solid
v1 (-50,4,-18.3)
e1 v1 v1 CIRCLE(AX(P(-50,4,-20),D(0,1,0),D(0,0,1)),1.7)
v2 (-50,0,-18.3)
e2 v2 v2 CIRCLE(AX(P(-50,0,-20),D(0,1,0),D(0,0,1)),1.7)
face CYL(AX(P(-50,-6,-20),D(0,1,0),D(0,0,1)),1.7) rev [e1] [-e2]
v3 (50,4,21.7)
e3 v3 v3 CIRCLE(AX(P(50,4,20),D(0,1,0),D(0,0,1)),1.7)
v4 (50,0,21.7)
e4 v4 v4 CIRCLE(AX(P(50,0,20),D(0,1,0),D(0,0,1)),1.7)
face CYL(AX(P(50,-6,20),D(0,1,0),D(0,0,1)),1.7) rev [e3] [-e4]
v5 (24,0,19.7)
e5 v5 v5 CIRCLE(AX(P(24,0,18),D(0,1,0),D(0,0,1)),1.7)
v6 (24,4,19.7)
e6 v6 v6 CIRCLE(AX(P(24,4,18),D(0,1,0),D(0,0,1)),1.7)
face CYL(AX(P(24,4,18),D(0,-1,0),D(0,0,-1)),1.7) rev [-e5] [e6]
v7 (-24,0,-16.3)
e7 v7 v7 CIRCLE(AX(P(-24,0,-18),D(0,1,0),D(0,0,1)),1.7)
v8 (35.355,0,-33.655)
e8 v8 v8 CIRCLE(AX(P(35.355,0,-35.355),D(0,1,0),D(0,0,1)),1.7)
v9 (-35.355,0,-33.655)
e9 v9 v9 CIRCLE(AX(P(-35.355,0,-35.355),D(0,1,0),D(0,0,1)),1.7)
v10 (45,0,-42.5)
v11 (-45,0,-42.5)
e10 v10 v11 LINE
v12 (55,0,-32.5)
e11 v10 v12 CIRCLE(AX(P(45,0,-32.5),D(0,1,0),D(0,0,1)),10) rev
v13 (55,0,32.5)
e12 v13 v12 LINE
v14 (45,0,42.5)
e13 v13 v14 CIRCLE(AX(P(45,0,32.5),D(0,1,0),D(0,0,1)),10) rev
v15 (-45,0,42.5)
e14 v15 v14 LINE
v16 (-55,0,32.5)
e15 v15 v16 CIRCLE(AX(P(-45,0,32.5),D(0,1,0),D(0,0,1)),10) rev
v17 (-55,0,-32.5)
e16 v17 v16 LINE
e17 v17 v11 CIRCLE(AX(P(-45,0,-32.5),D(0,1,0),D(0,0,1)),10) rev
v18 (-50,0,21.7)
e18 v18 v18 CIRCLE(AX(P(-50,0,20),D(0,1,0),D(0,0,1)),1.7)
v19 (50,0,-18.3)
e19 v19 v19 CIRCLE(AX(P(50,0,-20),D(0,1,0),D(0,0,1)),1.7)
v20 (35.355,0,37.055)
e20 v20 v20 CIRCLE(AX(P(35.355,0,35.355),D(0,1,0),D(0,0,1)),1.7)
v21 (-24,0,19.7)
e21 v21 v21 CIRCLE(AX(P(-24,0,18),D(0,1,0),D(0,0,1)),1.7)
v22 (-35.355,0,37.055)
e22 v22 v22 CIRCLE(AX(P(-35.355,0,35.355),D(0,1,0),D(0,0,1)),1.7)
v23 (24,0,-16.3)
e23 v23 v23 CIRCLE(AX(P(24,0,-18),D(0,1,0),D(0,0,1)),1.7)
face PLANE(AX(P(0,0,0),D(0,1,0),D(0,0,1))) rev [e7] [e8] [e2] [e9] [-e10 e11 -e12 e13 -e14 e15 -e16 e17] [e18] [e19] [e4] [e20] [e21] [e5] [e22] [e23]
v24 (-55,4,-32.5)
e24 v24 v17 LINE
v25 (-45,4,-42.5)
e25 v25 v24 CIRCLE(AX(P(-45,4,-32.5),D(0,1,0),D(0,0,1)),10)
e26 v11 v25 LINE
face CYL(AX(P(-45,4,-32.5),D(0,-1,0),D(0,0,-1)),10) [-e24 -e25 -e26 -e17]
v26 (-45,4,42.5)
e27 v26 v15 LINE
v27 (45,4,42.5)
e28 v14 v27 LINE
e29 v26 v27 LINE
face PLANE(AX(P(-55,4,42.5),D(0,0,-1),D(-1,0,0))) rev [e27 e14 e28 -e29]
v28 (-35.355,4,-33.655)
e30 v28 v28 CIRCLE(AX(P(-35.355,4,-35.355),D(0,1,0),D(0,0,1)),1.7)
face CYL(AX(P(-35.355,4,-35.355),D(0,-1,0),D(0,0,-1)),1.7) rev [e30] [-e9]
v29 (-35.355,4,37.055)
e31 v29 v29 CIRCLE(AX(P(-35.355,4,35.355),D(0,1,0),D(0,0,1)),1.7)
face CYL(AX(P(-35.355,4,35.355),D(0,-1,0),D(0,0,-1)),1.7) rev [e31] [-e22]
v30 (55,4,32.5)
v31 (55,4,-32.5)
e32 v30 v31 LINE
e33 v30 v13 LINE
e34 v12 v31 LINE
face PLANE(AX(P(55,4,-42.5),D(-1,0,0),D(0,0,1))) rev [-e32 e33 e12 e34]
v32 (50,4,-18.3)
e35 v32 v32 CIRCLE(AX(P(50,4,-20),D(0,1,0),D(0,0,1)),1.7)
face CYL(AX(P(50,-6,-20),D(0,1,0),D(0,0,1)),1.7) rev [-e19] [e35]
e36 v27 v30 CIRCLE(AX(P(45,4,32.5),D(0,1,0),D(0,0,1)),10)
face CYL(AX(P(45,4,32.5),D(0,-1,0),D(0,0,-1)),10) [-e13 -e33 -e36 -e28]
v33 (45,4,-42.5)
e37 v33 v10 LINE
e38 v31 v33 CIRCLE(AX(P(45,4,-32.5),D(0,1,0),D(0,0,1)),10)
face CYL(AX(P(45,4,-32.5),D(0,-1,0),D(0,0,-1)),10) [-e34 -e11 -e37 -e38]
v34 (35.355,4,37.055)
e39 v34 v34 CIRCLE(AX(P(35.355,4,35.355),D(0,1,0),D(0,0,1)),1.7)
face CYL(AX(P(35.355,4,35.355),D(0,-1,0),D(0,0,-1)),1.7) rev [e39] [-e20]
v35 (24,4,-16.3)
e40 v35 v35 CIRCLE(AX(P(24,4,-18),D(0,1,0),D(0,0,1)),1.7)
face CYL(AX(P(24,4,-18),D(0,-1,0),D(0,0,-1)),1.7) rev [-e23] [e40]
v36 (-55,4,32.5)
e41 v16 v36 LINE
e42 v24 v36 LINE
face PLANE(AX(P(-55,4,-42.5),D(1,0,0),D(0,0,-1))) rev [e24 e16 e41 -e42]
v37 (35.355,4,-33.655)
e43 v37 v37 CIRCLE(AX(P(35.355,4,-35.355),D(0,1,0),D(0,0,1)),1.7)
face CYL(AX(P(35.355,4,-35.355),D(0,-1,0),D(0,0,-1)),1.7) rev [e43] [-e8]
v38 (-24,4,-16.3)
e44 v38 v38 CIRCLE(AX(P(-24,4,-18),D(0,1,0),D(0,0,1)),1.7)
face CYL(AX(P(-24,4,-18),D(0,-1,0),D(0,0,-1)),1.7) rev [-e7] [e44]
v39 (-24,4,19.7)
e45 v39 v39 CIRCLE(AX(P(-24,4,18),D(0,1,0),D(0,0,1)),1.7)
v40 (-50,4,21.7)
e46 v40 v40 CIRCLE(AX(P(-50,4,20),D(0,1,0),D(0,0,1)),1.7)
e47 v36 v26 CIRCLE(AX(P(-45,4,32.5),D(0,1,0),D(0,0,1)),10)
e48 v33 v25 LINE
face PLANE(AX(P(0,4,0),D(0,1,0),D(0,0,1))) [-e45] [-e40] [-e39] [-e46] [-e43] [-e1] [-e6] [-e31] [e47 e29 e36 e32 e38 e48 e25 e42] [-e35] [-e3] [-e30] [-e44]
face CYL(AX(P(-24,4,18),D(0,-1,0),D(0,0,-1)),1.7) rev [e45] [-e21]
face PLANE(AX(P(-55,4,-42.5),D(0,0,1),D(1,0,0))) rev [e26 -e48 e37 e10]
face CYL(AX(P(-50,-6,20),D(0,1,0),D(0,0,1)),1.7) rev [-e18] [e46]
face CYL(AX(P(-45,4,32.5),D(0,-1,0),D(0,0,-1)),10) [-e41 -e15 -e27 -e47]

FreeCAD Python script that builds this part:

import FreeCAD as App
import Part
import Sketcher
Q = App.Units.Quantity


def edges_at(feature, points):
    """Names of the edges that pass closest to the given points."""
    edges = feature.Shape.Edges
    near = lambda p: min(range(len(edges)), key=lambda i: edges[i].distToShape(Part.Vertex(*p))[0])
    return sorted({f"Edge{near(p) + 1}" for p in points})


def add_polygon(sketch, points):
    """Adds a closed chain of lines whose ends are joined by coincident constraints."""
    first, n = sketch.GeometryCount, len(points)
    for a, b in zip(points, points[1:] + points[:1]):
        sketch.addGeometry(Part.LineSegment(App.Vector(*a, 0), App.Vector(*b, 0)), False)
    for i in range(n):
        sketch.addConstraint(Sketcher.Constraint("Coincident", first + i, 2, first + (i + 1) % n, 1))

doc = App.newDocument("Part")
body = doc.addObject("PartDesign::Body", "Body")

# Sketch on XZ plane
sketch1 = doc.addObject("Sketcher::SketchObject", "Sketch")
body.addObject(sketch1)
sketch1.AttachmentSupport = (doc.XZ_Plane, [""])
sketch1.MapMode = "FlatFace"
add_polygon(sketch1, [(-55, -42.5), (-55, 42.5), (55, 42.5), (55, -42.5)])  # lines 0-3
sketch1.addGeometry(Part.Circle(App.Vector(-35.355, 35.355, 0), App.Vector(0, 0, 1), 1.7), False)  # 4
sketch1.addGeometry(Part.Circle(App.Vector(-24, 18, 0), App.Vector(0, 0, 1), 1.7), False)  # 5
sketch1.addGeometry(Part.Circle(App.Vector(35.355, 35.355, 0), App.Vector(0, 0, 1), 1.7), False)  # 6
sketch1.addGeometry(Part.Circle(App.Vector(24, 18, 0), App.Vector(0, 0, 1), 1.7), False)  # 7
sketch1.addGeometry(Part.Circle(App.Vector(-24, -18, 0), App.Vector(0, 0, 1), 1.7), False)  # 8
sketch1.addGeometry(Part.Circle(App.Vector(-35.355, -35.355, 0), App.Vector(0, 0, 1), 1.7), False)  # 9
sketch1.addGeometry(Part.Circle(App.Vector(24, -18, 0), App.Vector(0, 0, 1), 1.7), False)  # 10
sketch1.addGeometry(Part.Circle(App.Vector(35.355, -35.355, 0), App.Vector(0, 0, 1), 1.7), False)  # 11
sketch1.addConstraint(Sketcher.Constraint("Vertical", 0))
sketch1.addConstraint(Sketcher.Constraint("Horizontal", 1))
sketch1.addConstraint(Sketcher.Constraint("Vertical", 2))
sketch1.addConstraint(Sketcher.Constraint("Horizontal", 3))
sketch1.addConstraint(Sketcher.Constraint("Equal", 4, 5))
sketch1.addConstraint(Sketcher.Constraint("Equal", 5, 6))
sketch1.addConstraint(Sketcher.Constraint("Equal", 6, 7))
sketch1.addConstraint(Sketcher.Constraint("Equal", 7, 8))
sketch1.addConstraint(Sketcher.Constraint("Equal", 8, 9))
sketch1.addConstraint(Sketcher.Constraint("Equal", 9, 10))
sketch1.addConstraint(Sketcher.Constraint("Equal", 10, 11))
sketch1.addConstraint(Sketcher.Constraint("Symmetric", 7, 3, 8, 3, -1, 1))
sketch1.addConstraint(Sketcher.Constraint("Symmetric", 6, 3, 9, 3, -1, 1))
sketch1.addConstraint(Sketcher.Constraint("Symmetric", 5, 3, 10, 3, -1, 1))
sketch1.addConstraint(Sketcher.Constraint("Symmetric", 4, 3, 11, 3, -1, 1))
sketch1.addConstraint(Sketcher.Constraint("Symmetric", 0, 2, 2, 2, -1, 1))
sketch1.addConstraint(Sketcher.Constraint("Symmetric", 4, 3, 6, 3, -2))
sketch1.addConstraint(Sketcher.Constraint("Symmetric", 5, 3, 7, 3, -2))
sketch1.addConstraint(Sketcher.Constraint("Diameter", 4, Q("3.4 mm")))
sketch1.addConstraint(Sketcher.Constraint("DistanceX", 1, 1, 1, 2, Q("110 mm")))
sketch1.addConstraint(Sketcher.Constraint("DistanceY", 0, 1, 0, 2, Q("85 mm")))
sketch1.addConstraint(Sketcher.Constraint("DistanceX", 5, 3, -1, 1, Q("24 mm")))
sketch1.addConstraint(Sketcher.Constraint("DistanceY", -1, 1, 5, 3, Q("18 mm")))
sketch1.addConstraint(Sketcher.Constraint("DistanceX", 4, 3, 6, 3, Q("70.71 mm")))
sketch1.addConstraint(Sketcher.Constraint("DistanceY", 9, 3, 4, 3, Q("70.71 mm")))
pad1 = doc.addObject("PartDesign::Pad", "Pad")
body.addObject(pad1)
pad1.Profile = sketch1
pad1.Length = 4
pad1.Reversed = True

# Sketch on XZ plane
sketch2 = doc.addObject("Sketcher::SketchObject", "Sketch001")
body.addObject(sketch2)
sketch2.AttachmentSupport = (doc.XZ_Plane, [""])
sketch2.MapMode = "FlatFace"
sketch2.AttachmentOffset = App.Placement(App.Vector(0, 0, -4), App.Rotation())
sketch2.addGeometry(Part.Circle(App.Vector(50, -20, 0), App.Vector(0, 0, 1), 1.7), False)
sketch2.addGeometry(Part.Circle(App.Vector(50, 20, 0), App.Vector(0, 0, 1), 1.7), False)
sketch2.addGeometry(Part.Circle(App.Vector(-50, -20, 0), App.Vector(0, 0, 1), 1.7), False)
sketch2.addGeometry(Part.Circle(App.Vector(-50, 20, 0), App.Vector(0, 0, 1), 1.7), False)
sketch2.addConstraint(Sketcher.Constraint("Equal", 0, 1))
sketch2.addConstraint(Sketcher.Constraint("Equal", 1, 2))
sketch2.addConstraint(Sketcher.Constraint("Equal", 2, 3))
sketch2.addConstraint(Sketcher.Constraint("Symmetric", 1, 3, 2, 3, -1, 1))
sketch2.addConstraint(Sketcher.Constraint("Symmetric", 0, 3, 3, 3, -1, 1))
sketch2.addConstraint(Sketcher.Constraint("Symmetric", 0, 3, 2, 3, -2))
sketch2.addConstraint(Sketcher.Constraint("Diameter", 0, Q("3.4 mm")))
sketch2.addConstraint(Sketcher.Constraint("DistanceX", -1, 1, 0, 3, Q("50 mm")))
sketch2.addConstraint(Sketcher.Constraint("DistanceY", 0, 3, -1, 1, Q("20 mm")))
pocket1 = doc.addObject("PartDesign::Pocket", "Pocket")
body.addObject(pocket1)
pocket1.Profile = sketch2
pocket1.Length = 10
pocket1.Reversed = True
doc.recompute()

fillet = doc.addObject("PartDesign::Fillet", "Fillet")
body.addObject(fillet)
fillet.Base = (pocket1, edges_at(pocket1, [
    (55, 2, 42.5),
    (-55, 2, 42.5),
    (-55, 2, -42.5),
    (55, 2, -42.5),
]))
fillet.Radius = 10

doc.recompute()
